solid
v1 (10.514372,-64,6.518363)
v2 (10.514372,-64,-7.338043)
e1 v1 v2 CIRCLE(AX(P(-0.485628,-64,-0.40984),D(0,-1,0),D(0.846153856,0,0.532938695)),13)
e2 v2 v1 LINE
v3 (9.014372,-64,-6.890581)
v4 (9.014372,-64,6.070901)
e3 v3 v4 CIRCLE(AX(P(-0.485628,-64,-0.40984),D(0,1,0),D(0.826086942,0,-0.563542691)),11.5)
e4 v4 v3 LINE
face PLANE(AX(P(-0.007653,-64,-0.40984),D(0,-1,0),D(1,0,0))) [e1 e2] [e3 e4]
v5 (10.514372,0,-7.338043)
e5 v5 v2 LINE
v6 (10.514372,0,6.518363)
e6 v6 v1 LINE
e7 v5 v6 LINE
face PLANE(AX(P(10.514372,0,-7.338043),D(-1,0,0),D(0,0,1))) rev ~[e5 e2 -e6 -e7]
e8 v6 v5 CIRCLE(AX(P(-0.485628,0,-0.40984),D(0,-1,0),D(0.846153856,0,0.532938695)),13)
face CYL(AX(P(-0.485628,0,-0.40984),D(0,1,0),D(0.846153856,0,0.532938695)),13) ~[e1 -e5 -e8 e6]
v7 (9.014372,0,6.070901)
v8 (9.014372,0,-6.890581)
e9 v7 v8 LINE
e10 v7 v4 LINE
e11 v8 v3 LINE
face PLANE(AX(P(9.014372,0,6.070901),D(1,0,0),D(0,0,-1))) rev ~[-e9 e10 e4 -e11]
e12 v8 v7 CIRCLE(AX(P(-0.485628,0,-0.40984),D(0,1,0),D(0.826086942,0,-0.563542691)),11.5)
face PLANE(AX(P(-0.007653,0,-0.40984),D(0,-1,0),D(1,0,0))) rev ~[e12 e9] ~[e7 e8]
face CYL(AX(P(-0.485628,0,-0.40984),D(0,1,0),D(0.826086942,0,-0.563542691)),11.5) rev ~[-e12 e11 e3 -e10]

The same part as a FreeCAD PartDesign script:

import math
import FreeCAD as App
import Part
import Sketcher
from FreeCAD import Vector
Q = App.Units.Quantity

doc = App.newDocument("Part")
body = doc.addObject("PartDesign::Body", "Body")

sketch1 = body.newObject("Sketcher::SketchObject", "Sketch")
sketch1.AttachmentSupport = (doc.getObject("XZ_Plane"), [""])
sketch1.MapMode = "FlatFace"
sketch1.addGeometry(Part.LineSegment(Vector(10.514372, -7.338043, 0), Vector(10.514372, 6.518363, 0)), False)
sketch1.addGeometry(Part.ArcOfCircle(Part.Circle(Vector(-0.485628, -0.40984, 0), Vector(0, 0, 1), 13), math.radians(32.204226), math.radians(327.795774)), False)
sketch1.addGeometry(Part.LineSegment(Vector(9.014372, 6.070901, 0), Vector(9.014372, -6.890581, 0)), False)
sketch1.addGeometry(Part.ArcOfCircle(Part.Circle(Vector(-0.485628, -0.40984, 0), Vector(0, 0, 1), 11.5), math.radians(34.301154), math.radians(325.698846)), False)
sketch1.addConstraint(Sketcher.Constraint("Coincident", 0, 1, 1, 2))
sketch1.addConstraint(Sketcher.Constraint("Coincident", 1, 1, 0, 2))
sketch1.addConstraint(Sketcher.Constraint("Coincident", 2, 1, 3, 1))
sketch1.addConstraint(Sketcher.Constraint("Coincident", 3, 2, 2, 2))
sketch1.addConstraint(Sketcher.Constraint("Vertical", 0))
sketch1.addConstraint(Sketcher.Constraint("Vertical", 2))
sketch1.addConstraint(Sketcher.Constraint("Coincident", 3, 3, 1, 3))
sketch1.addConstraint(Sketcher.Constraint("Radius", 1, Q("13 mm")))
sketch1.addConstraint(Sketcher.Constraint("Radius", 3, Q("11.5 mm")))
sketch1.addConstraint(Sketcher.Constraint("DistanceX", 3, 3, 0, 1, Q("11 mm")))
sketch1.addConstraint(Sketcher.Constraint("DistanceX", 2, 1, 1, 1, Q("1.5 mm")))
sketch1.addConstraint(Sketcher.Constraint("DistanceY", -1, 1, 2, 1, Q("6.070901 mm")))
sketch1.addConstraint(Sketcher.Constraint("DistanceX", 1, 3, -1, 1, Q("0.485628 mm")))
pad1 = body.newObject("PartDesign::Pad", "Pad")
pad1.Profile = sketch1
pad1.Length = 64

doc.recompute()
